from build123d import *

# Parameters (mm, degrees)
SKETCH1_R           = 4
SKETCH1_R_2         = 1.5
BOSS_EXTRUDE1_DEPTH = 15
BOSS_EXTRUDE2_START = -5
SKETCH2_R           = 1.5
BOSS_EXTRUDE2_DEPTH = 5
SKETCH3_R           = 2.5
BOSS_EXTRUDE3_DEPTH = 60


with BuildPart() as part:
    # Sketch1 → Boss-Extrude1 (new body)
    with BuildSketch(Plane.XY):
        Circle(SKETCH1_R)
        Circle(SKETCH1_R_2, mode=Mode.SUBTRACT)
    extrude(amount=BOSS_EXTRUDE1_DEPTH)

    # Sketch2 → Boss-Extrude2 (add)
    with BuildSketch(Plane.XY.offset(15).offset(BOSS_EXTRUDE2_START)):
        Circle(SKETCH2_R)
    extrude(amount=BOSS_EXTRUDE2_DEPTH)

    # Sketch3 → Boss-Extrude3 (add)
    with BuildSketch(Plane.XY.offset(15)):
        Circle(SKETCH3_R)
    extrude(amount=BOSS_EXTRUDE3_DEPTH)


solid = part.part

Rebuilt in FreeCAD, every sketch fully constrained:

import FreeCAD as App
import Part
import Sketcher
from FreeCAD import Vector

doc = App.newDocument("Part")
body = doc.addObject("PartDesign::Body", "Body")

# Sketch on XY plane
sketch1 = body.newObject("Sketcher::SketchObject", "Sketch")
sketch1.AttachmentSupport = (doc.getObject("XY_Plane"), [""])
sketch1.MapMode = "FlatFace"
sketch1.addGeometry(Part.Circle(Vector(0, 0, 0), Vector(0, 0, 1), 4), False)
sketch1.addGeometry(Part.Circle(Vector(0, 0, 0), Vector(0, 0, 1), 1.5), False)
sketch1.addConstraint(Sketcher.Constraint("Coincident", 0, 3, -1, 1))
sketch1.addConstraint(Sketcher.Constraint("Coincident", 1, 3, -1, 1))
sketch1.addConstraint(Sketcher.Constraint("Diameter", 0, 8.0))
sketch1.addConstraint(Sketcher.Constraint("Diameter", 1, 3.0))
pad1 = body.newObject("PartDesign::Pad", "Pad")
pad1.Profile = sketch1
pad1.Length = 15

# Sketch on XY plane
sketch2 = body.newObject("Sketcher::SketchObject", "Sketch001")
sketch2.AttachmentSupport = (doc.getObject("XY_Plane"), [""])
sketch2.MapMode = "FlatFace"
sketch2.AttachmentOffset = App.Placement(Vector(0, 0, 10), App.Rotation())
sketch2.addGeometry(Part.Circle(Vector(0, 0, 0), Vector(0, 0, 1), 1.5), False)
sketch2.addConstraint(Sketcher.Constraint("Coincident", 0, 3, -1, 1))
sketch2.addConstraint(Sketcher.Constraint("Diameter", 0, 3.0))
pad2 = body.newObject("PartDesign::Pad", "Pad001")
pad2.Profile = sketch2
pad2.Length = 5

# Sketch on XY plane
sketch3 = body.newObject("Sketcher::SketchObject", "Sketch002")
sketch3.AttachmentSupport = (doc.getObject("XY_Plane"), [""])
sketch3.MapMode = "FlatFace"
sketch3.AttachmentOffset = App.Placement(Vector(0, 0, 15), App.Rotation())
sketch3.addGeometry(Part.Circle(Vector(0, 0, 0), Vector(0, 0, 1), 2.5), False)
sketch3.addConstraint(Sketcher.Constraint("Coincident", 0, 3, -1, 1))
sketch3.addConstraint(Sketcher.Constraint("Diameter", 0, 5.0))
pad3 = body.newObject("PartDesign::Pad", "Pad002")
pad3.Profile = sketch3
pad3.Length = 60

doc.recompute()
